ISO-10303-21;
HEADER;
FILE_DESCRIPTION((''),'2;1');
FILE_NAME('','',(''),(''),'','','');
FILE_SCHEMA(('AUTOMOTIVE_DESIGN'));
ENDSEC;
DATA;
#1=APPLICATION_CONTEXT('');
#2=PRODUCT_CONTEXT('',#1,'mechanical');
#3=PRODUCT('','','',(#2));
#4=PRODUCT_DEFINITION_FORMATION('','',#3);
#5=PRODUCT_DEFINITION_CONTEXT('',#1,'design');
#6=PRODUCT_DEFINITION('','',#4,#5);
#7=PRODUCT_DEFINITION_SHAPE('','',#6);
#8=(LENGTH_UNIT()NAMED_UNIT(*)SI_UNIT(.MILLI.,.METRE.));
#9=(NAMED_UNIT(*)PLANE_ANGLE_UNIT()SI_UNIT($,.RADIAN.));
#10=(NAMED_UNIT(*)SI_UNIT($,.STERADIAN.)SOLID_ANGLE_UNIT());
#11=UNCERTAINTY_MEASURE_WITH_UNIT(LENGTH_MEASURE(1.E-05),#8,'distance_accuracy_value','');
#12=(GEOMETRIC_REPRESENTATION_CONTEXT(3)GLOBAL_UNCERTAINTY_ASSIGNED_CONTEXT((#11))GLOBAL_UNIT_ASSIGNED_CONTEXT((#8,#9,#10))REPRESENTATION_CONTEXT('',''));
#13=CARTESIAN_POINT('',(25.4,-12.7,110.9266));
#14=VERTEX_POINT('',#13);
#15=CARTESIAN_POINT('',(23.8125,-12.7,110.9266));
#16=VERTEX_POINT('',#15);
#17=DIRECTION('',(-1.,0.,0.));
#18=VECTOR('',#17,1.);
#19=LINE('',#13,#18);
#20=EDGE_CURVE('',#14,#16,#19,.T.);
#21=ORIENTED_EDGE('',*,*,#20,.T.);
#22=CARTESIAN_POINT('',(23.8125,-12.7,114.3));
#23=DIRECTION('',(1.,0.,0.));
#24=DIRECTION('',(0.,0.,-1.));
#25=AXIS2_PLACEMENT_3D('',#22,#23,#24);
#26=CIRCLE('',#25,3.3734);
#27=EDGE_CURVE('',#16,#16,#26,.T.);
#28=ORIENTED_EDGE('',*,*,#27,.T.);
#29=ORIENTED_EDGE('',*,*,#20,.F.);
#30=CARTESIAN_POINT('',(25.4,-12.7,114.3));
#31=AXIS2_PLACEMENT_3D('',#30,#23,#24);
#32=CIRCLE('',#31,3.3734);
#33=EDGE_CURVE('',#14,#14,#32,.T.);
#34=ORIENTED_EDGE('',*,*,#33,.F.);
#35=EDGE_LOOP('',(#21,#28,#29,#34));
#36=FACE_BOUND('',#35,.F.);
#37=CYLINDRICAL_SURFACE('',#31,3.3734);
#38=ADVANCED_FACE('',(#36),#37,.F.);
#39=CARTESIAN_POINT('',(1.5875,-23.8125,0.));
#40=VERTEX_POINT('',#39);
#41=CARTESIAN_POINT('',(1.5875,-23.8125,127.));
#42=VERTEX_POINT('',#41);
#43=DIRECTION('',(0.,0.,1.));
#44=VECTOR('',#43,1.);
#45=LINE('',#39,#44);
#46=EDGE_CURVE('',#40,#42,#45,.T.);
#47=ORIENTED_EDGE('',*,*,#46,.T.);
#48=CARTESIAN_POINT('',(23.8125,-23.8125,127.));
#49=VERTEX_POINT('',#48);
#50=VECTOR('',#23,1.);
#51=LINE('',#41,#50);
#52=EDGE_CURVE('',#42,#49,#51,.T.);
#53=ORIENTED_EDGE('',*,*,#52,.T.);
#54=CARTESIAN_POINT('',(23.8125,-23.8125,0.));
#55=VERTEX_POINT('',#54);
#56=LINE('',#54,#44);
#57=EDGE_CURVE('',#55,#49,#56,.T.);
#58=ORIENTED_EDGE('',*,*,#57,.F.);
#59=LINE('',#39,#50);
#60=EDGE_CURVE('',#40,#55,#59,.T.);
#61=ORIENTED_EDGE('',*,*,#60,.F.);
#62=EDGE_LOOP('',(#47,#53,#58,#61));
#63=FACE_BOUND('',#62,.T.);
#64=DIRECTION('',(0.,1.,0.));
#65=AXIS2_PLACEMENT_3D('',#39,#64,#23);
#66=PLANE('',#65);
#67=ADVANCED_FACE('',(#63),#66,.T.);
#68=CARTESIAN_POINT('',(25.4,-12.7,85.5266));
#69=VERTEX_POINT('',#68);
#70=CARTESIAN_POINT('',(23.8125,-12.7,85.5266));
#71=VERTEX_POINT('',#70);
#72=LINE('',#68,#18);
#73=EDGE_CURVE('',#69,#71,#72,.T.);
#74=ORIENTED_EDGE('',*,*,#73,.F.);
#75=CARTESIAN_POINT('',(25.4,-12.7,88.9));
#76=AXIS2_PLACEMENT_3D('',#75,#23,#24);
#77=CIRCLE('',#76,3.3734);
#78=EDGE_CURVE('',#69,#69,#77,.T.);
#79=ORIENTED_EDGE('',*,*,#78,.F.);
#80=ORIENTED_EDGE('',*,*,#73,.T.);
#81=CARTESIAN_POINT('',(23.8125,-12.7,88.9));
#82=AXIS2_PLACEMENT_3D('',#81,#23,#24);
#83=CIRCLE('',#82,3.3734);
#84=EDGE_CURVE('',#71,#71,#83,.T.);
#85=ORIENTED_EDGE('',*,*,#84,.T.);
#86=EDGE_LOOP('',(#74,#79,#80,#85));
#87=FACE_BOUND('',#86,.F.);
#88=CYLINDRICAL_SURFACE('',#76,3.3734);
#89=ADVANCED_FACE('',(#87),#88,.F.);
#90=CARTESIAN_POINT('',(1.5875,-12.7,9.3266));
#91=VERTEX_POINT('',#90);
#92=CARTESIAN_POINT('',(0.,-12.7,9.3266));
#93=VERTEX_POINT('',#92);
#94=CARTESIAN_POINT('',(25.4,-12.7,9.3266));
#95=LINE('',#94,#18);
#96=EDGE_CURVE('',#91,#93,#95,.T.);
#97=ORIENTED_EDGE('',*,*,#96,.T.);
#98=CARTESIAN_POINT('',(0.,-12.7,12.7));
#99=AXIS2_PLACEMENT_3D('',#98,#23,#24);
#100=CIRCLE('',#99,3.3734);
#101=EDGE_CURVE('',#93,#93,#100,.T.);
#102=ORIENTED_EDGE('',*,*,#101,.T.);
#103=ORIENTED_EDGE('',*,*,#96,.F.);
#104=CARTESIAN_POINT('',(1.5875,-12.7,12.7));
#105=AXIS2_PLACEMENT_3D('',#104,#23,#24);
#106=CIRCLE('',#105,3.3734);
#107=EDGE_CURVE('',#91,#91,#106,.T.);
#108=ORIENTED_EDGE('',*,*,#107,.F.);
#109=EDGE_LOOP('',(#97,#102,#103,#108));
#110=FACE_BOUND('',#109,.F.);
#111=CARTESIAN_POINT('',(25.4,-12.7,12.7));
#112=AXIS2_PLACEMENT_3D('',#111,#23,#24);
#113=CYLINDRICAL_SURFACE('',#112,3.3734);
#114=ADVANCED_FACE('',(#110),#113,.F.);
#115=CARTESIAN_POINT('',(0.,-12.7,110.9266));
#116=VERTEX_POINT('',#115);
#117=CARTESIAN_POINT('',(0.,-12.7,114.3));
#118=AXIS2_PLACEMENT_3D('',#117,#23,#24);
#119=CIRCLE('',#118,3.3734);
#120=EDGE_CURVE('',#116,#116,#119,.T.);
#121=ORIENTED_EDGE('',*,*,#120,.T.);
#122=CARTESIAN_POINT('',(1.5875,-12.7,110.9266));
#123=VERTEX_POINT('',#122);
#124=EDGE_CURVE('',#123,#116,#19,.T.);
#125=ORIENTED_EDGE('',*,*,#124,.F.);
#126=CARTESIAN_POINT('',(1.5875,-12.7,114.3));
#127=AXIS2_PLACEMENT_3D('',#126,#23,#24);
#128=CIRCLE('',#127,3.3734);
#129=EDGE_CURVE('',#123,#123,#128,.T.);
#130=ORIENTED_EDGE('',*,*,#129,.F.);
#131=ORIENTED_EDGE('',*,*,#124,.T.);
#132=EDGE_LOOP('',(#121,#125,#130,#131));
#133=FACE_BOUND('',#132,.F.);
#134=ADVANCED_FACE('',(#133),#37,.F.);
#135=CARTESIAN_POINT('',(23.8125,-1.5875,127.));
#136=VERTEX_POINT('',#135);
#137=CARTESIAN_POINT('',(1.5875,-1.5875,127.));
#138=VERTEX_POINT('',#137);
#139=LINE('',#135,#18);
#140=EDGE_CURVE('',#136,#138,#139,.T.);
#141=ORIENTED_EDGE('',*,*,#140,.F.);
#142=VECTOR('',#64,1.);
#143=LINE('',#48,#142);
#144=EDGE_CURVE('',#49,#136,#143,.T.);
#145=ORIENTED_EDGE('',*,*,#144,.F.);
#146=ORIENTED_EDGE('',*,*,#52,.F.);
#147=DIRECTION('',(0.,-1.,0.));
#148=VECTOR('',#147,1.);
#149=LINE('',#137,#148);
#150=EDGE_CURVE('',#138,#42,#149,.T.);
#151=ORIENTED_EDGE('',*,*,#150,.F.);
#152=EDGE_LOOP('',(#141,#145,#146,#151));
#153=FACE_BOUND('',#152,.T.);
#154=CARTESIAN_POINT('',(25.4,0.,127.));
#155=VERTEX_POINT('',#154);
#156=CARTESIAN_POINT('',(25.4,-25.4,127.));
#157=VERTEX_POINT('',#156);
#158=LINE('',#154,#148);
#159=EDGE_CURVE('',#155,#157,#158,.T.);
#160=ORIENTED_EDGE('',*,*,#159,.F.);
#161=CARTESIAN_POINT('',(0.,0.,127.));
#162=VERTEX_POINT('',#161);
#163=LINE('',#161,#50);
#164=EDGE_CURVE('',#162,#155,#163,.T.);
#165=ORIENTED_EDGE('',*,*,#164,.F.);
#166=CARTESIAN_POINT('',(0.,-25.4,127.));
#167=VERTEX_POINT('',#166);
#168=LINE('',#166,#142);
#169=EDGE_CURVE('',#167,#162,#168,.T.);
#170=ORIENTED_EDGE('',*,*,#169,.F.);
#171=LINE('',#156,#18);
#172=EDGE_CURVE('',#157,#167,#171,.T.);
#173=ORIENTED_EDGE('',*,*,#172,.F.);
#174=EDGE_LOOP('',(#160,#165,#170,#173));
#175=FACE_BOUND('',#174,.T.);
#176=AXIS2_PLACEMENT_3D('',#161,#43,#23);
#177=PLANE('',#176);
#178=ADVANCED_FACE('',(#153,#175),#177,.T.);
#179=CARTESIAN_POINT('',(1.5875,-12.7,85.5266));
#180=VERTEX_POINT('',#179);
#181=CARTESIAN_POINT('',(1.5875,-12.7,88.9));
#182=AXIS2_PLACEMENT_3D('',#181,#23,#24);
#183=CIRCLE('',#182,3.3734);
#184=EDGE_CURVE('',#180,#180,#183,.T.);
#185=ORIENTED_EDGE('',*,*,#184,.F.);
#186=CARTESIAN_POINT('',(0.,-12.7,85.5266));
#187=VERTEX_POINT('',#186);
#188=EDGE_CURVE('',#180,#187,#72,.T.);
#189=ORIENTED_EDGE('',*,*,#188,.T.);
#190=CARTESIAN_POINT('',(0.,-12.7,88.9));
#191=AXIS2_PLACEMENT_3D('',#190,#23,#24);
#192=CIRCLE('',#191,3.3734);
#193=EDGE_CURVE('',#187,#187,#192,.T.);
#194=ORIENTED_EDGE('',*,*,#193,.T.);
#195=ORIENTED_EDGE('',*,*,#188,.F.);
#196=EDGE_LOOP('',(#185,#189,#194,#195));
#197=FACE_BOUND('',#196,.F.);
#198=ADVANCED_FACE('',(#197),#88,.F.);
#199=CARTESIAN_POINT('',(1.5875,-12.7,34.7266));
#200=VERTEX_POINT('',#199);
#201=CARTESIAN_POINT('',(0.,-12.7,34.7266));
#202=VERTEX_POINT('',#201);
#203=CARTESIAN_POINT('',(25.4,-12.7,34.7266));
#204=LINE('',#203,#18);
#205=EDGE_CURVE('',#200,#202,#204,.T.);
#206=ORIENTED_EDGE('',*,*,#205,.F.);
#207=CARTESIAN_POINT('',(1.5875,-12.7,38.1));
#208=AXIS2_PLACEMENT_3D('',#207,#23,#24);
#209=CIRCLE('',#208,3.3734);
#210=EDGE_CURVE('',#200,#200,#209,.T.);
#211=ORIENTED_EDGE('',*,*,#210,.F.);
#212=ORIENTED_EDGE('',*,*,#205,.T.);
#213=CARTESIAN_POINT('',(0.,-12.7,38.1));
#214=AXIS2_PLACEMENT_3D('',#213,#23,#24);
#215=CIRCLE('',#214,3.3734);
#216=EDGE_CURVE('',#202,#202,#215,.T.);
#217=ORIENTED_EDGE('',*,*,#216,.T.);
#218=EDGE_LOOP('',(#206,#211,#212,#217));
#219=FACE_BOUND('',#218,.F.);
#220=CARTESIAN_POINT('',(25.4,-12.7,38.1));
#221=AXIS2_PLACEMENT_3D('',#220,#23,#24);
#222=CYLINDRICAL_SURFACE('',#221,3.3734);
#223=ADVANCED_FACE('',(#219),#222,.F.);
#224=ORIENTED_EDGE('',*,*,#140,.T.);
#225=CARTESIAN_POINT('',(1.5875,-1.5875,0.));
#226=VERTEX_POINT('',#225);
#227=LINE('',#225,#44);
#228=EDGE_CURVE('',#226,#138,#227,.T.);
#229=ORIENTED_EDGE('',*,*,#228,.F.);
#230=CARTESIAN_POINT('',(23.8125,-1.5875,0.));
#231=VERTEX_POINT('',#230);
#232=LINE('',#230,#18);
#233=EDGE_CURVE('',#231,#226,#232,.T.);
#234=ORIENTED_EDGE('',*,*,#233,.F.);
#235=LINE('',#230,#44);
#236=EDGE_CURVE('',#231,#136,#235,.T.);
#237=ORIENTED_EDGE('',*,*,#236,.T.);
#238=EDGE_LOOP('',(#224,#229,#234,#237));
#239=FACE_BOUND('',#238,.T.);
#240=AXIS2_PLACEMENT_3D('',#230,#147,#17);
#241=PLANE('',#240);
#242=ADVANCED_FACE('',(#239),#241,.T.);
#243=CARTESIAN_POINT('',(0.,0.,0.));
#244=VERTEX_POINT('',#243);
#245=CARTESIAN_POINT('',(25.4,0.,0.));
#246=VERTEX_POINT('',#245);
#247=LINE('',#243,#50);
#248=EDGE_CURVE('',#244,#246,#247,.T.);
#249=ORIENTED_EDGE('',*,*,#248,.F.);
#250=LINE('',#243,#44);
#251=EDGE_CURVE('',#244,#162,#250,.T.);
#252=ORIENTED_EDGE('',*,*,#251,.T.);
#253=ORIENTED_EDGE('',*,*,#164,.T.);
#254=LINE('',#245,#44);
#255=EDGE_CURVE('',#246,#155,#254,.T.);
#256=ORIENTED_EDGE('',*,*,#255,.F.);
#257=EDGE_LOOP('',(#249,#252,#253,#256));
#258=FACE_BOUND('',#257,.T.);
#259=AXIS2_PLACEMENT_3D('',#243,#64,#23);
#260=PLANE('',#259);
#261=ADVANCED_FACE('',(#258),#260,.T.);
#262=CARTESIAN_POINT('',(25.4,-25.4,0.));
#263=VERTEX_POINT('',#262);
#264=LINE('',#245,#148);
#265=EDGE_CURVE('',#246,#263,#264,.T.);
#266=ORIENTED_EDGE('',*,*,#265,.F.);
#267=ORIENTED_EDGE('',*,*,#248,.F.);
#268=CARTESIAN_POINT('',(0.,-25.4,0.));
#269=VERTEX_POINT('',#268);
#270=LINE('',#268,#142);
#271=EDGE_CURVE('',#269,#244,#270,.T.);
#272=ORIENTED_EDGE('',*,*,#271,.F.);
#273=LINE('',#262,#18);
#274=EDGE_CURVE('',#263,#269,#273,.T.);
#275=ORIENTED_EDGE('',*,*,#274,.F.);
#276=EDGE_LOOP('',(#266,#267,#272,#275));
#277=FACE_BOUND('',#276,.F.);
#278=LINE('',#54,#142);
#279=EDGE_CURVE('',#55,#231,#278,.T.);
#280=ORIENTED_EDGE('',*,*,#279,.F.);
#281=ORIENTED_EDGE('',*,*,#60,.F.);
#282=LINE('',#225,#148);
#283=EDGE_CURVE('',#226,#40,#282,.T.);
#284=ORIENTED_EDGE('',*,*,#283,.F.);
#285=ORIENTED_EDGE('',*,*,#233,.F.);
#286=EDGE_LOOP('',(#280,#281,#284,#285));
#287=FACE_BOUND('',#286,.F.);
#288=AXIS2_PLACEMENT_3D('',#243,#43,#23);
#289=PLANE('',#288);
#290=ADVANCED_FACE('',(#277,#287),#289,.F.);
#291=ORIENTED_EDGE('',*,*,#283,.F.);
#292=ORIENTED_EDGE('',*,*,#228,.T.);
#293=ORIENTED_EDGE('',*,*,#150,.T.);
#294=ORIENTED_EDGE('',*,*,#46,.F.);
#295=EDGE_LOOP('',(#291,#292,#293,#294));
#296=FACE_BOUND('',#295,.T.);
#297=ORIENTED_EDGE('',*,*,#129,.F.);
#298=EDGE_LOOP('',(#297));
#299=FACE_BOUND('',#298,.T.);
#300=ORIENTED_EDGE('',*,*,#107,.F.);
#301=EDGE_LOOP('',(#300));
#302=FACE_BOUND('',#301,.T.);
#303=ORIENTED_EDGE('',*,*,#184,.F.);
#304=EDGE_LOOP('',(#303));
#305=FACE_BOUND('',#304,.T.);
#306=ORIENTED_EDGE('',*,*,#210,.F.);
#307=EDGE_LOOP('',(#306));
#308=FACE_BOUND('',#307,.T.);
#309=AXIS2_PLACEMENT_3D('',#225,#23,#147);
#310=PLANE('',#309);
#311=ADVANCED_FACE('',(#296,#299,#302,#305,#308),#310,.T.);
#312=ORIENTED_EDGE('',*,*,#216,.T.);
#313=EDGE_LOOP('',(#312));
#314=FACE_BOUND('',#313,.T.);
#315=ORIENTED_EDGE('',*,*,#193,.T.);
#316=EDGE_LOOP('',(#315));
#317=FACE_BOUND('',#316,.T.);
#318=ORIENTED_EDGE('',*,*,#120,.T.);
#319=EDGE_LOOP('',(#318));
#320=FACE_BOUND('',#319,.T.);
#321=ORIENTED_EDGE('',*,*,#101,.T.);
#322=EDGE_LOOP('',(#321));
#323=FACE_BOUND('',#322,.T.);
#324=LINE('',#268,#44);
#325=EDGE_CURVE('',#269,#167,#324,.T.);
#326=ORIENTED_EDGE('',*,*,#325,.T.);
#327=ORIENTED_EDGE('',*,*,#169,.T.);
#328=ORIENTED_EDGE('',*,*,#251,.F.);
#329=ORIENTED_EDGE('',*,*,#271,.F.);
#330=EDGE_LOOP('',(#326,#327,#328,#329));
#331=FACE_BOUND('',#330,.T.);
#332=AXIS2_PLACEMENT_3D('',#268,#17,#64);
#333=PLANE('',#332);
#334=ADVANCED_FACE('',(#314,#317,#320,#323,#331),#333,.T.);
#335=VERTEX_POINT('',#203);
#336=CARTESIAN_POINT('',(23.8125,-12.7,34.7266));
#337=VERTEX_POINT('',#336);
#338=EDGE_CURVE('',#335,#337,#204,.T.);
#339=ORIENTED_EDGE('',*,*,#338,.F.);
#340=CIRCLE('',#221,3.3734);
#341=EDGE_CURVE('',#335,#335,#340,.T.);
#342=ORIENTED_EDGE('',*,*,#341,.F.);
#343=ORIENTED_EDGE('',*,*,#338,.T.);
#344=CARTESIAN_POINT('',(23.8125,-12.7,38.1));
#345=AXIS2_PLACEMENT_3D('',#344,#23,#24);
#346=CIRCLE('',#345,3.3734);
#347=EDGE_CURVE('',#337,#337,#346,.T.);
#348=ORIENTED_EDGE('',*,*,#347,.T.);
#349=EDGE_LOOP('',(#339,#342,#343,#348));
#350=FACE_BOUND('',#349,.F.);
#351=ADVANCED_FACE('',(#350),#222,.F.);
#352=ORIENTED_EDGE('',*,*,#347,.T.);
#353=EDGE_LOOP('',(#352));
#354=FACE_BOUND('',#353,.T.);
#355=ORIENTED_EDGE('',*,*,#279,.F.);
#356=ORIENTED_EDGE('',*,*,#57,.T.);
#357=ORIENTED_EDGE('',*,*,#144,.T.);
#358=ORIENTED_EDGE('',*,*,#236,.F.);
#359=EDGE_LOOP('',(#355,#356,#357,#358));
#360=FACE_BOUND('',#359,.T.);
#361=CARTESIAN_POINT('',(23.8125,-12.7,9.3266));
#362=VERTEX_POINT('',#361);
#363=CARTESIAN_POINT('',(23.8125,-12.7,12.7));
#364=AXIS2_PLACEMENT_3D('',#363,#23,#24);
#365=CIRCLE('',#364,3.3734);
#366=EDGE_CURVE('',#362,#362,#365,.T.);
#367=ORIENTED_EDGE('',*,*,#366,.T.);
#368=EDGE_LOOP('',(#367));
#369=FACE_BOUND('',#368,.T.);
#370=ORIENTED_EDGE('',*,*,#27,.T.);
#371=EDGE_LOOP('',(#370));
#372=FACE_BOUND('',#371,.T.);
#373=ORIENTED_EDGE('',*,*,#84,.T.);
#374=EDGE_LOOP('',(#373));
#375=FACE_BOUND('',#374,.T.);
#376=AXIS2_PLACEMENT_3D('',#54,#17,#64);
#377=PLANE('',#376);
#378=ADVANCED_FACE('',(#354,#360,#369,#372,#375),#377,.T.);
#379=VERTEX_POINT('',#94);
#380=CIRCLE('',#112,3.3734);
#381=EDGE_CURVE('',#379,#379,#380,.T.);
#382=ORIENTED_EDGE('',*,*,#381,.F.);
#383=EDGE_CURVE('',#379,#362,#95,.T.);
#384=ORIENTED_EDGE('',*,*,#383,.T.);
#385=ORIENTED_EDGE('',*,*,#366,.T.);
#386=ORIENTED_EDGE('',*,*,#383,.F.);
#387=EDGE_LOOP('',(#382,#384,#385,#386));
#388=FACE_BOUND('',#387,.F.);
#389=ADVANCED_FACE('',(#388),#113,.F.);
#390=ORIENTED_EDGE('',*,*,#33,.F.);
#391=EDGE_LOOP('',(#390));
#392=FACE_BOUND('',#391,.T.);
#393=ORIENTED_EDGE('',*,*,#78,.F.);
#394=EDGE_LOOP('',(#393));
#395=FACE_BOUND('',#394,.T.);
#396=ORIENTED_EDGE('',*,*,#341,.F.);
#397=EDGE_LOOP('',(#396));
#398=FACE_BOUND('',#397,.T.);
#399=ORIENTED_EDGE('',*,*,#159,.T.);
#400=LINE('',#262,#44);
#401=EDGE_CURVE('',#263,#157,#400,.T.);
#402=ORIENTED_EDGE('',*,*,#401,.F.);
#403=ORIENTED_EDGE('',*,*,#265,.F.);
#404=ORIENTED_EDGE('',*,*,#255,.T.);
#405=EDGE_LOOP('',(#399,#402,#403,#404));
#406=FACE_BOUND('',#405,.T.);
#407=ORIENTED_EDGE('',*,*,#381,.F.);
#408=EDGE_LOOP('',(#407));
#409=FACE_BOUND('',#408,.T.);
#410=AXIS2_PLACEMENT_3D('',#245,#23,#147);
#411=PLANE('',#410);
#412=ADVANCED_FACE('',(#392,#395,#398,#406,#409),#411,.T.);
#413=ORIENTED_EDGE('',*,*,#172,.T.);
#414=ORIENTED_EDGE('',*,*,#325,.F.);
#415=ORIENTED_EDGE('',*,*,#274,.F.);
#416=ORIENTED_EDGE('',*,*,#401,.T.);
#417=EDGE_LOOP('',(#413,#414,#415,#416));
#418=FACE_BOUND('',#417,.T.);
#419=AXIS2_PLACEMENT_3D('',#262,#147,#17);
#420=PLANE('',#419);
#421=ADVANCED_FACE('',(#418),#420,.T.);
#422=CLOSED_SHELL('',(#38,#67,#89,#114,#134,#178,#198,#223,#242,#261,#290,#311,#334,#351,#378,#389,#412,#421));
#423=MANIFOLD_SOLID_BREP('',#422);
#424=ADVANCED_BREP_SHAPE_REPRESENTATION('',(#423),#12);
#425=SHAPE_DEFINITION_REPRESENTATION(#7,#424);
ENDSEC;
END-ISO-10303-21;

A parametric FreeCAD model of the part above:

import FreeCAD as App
import Part
import Sketcher

V = App.Vector
Q = App.Units.Quantity

doc = App.newDocument("Part")
body = doc.addObject("PartDesign::Body", "Body")

# Sketch on XY plane
sketch1 = body.newObject("Sketcher::SketchObject", "Sketch")
sketch1.AttachmentSupport = (doc.getObject("XY_Plane"), [""])
sketch1.MapMode = "FlatFace"
sketch1.addGeometry(Part.LineSegment(V(25, 0, 0), V(0, 0, 0)), False)
sketch1.addGeometry(Part.LineSegment(V(0, 0, 0), V(0, -25, 0)), False)
sketch1.addGeometry(Part.LineSegment(V(0, -25, 0), V(25, -25, 0)), False)
sketch1.addGeometry(Part.LineSegment(V(25, -25, 0), V(25, 0, 0)), False)
sketch1.addGeometry(Part.LineSegment(V(24, -24, 0), V(2, -24, 0)), False)
sketch1.addGeometry(Part.LineSegment(V(2, -24, 0), V(2, -2, 0)), False)
sketch1.addGeometry(Part.LineSegment(V(2, -2, 0), V(24, -2, 0)), False)
sketch1.addGeometry(Part.LineSegment(V(24, -2, 0), V(24, -24, 0)), False)
sketch1.addConstraint(Sketcher.Constraint("Coincident", 0, 2, 1, 1))
sketch1.addConstraint(Sketcher.Constraint("Coincident", 1, 2, 2, 1))
sketch1.addConstraint(Sketcher.Constraint("Coincident", 2, 2, 3, 1))
sketch1.addConstraint(Sketcher.Constraint("Coincident", 3, 2, 0, 1))
sketch1.addConstraint(Sketcher.Constraint("Coincident", 4, 2, 5, 1))
sketch1.addConstraint(Sketcher.Constraint("Coincident", 5, 2, 6, 1))
sketch1.addConstraint(Sketcher.Constraint("Coincident", 6, 2, 7, 1))
sketch1.addConstraint(Sketcher.Constraint("Coincident", 7, 2, 4, 1))
sketch1.addConstraint(Sketcher.Constraint("Horizontal", 0))
sketch1.addConstraint(Sketcher.Constraint("Vertical", 1))
sketch1.addConstraint(Sketcher.Constraint("Horizontal", 2))
sketch1.addConstraint(Sketcher.Constraint("Vertical", 3))
sketch1.addConstraint(Sketcher.Constraint("Horizontal", 4))
sketch1.addConstraint(Sketcher.Constraint("Vertical", 5))
sketch1.addConstraint(Sketcher.Constraint("Horizontal", 6))
sketch1.addConstraint(Sketcher.Constraint("Vertical", 7))
sketch1.addConstraint(Sketcher.Constraint("Coincident", 0, 2, -1, 1))
sketch1.addConstraint(Sketcher.Constraint("Equal", 2, 1))
sketch1.addConstraint(Sketcher.Constraint("Equal", 6, 5))
sketch1.addConstraint(Sketcher.Constraint("DistanceX", 0, 2, 0, 1, Q("1 in")))
sketch1.addConstraint(Sketcher.Constraint("DistanceX", -1, 1, 4, 2, Q("0.0625 in")))
sketch1.addConstraint(Sketcher.Constraint("DistanceY", 5, 2, -1, 1, Q("0.0625 in")))
sketch1.addConstraint(Sketcher.Constraint("DistanceY", 1, 2, 4, 2, Q("0.0625 in")))
pad1 = body.newObject("PartDesign::Pad", "Pad")
pad1.Profile = sketch1
pad1.Length = Q("5 in")

# Sketch on YZ plane
sketch2 = body.newObject("Sketcher::SketchObject", "Sketch001")
sketch2.AttachmentSupport = (doc.getObject("YZ_Plane"), [""])
sketch2.MapMode = "FlatFace"
sketch2.AttachmentOffset = App.Placement(V(0, 0, 1 * 25.4), App.Rotation())
sketch2.addGeometry(Part.Circle(V(-12.7, 12.7, 0), V(0, 0, 1), 3.4), False)
sketch2.addGeometry(Part.Circle(V(-12.7, 38.1, 0), V(0, 0, 1), 3.4), False)
sketch2.addGeometry(Part.Circle(V(-12.7, 88.9, 0), V(0, 0, 1), 3.4), False)
sketch2.addGeometry(Part.Circle(V(-12.7, 114.3, 0), V(0, 0, 1), 3.4), False)
sketch2.addConstraint(Sketcher.Constraint("Equal", 0, 1))
sketch2.addConstraint(Sketcher.Constraint("Equal", 1, 2))
sketch2.addConstraint(Sketcher.Constraint("Equal", 2, 3))
sketch2.addConstraint(Sketcher.Constraint("Vertical", 0, 3, 1, 3))
sketch2.addConstraint(Sketcher.Constraint("Vertical", 1, 3, 2, 3))
sketch2.addConstraint(Sketcher.Constraint("Vertical", 2, 3, 3, 3))
sketch2.addConstraint(Sketcher.Constraint("Diameter", 0, Q("0.265622 in")))
sketch2.addConstraint(Sketcher.Constraint("DistanceX", 0, 3, -1, 1, Q("0.5 in")))
sketch2.addConstraint(Sketcher.Constraint("DistanceY", -1, 1, 0, 3, Q("0.5 in")))
sketch2.addConstraint(Sketcher.Constraint("DistanceY", -1, 1, 1, 3, Q("1.5 in")))
sketch2.addConstraint(Sketcher.Constraint("DistanceY", 1, 3, 2, 3, Q("2 in")))
sketch2.addConstraint(Sketcher.Constraint("DistanceY", 2, 3, 3, 3, Q("1 in")))
pocket1 = body.newObject("PartDesign::Pocket", "Pocket")
pocket1.Profile = sketch2
pocket1.Length = Q("1 in")

doc.recompute()
